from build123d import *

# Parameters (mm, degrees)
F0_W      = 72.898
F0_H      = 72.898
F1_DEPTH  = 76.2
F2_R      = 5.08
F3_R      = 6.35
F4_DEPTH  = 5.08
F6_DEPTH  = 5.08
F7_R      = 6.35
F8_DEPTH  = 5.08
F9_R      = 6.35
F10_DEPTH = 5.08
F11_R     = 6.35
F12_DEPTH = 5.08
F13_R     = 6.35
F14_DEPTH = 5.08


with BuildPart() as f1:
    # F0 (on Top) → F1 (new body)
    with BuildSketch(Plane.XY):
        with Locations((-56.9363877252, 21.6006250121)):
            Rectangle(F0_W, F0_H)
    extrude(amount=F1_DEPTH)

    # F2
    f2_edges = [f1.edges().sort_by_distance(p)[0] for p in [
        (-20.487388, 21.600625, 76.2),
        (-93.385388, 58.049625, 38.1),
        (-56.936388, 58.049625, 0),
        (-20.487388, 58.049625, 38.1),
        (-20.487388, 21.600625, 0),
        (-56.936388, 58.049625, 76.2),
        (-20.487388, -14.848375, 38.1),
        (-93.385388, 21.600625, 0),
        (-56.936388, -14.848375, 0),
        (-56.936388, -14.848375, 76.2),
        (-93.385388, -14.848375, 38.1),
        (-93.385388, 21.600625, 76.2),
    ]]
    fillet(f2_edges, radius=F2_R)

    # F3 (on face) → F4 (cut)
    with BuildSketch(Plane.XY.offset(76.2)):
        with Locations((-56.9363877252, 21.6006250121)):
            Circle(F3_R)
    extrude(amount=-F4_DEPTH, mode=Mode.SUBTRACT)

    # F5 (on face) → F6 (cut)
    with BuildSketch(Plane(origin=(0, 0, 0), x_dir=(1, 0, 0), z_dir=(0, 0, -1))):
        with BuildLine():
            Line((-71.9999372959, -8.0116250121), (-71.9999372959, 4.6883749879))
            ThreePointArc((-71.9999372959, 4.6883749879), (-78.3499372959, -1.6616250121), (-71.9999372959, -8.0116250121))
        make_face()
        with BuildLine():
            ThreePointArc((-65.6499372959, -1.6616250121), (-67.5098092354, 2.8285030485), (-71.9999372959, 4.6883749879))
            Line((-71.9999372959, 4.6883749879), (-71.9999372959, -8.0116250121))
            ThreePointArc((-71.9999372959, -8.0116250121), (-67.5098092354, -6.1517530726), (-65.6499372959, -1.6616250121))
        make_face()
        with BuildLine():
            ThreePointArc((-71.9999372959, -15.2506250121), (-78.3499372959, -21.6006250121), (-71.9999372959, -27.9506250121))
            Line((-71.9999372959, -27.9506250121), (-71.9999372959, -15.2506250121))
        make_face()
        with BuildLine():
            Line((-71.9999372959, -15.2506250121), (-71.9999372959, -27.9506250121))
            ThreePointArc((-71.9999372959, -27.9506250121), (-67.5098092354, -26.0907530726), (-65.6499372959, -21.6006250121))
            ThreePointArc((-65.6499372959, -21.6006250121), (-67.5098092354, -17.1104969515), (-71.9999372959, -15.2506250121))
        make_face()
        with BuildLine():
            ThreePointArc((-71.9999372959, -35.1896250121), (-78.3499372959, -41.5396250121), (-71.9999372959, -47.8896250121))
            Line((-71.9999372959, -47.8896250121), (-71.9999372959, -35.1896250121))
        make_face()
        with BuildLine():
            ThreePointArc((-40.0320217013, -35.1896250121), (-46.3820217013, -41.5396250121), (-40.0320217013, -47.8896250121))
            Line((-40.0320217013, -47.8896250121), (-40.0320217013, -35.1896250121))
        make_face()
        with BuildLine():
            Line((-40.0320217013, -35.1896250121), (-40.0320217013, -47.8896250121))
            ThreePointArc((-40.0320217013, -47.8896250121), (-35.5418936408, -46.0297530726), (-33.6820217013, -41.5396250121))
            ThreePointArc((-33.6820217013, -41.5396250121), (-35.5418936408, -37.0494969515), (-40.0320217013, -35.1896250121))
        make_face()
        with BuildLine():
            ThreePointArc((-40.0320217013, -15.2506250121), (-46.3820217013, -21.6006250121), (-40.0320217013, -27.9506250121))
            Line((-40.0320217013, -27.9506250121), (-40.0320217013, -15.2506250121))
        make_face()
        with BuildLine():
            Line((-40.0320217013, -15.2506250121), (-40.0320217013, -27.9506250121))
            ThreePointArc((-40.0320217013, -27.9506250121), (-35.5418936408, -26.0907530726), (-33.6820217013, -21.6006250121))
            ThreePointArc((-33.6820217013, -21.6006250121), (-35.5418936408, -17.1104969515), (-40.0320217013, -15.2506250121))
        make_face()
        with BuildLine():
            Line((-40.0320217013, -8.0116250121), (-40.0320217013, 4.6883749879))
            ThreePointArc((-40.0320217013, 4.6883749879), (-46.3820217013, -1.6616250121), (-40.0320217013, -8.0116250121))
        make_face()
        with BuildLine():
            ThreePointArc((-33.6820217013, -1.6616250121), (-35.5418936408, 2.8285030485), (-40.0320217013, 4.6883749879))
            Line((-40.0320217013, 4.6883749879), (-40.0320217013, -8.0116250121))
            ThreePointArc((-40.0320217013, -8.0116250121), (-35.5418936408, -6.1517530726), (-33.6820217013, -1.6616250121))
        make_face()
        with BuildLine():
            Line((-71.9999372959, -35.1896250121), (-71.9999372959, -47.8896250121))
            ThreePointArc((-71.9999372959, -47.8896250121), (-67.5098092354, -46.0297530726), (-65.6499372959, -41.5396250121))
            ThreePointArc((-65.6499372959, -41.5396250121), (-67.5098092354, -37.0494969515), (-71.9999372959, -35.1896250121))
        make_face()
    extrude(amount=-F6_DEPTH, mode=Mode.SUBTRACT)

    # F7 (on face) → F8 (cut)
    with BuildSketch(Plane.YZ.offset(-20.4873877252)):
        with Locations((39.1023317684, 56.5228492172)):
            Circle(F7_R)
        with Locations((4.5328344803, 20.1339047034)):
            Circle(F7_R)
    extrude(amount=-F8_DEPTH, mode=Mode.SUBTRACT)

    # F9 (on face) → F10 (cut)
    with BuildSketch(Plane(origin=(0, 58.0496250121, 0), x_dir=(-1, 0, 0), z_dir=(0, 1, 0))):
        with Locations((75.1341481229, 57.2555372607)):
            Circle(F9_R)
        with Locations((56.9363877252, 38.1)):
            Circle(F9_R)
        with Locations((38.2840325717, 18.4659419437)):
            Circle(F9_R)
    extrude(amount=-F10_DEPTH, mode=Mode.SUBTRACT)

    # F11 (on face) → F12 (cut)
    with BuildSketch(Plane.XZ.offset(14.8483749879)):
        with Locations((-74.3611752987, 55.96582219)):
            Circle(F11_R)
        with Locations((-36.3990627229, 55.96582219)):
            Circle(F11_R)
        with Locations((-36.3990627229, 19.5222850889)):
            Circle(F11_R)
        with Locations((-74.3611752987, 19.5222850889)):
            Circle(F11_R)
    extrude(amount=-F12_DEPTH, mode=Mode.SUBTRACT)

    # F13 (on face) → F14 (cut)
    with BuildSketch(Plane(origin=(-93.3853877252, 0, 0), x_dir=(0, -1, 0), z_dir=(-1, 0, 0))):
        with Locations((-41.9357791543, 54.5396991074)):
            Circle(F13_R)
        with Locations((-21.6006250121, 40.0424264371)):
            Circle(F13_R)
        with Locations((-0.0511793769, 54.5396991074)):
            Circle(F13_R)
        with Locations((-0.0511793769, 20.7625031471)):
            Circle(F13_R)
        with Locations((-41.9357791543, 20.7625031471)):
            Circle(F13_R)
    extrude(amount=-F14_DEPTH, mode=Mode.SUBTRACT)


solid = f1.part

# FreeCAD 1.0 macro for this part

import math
import FreeCAD as App
import Part
import Sketcher
from FreeCAD import Vector
Q = App.Units.Quantity

doc = App.newDocument("Part")
body = doc.addObject("PartDesign::Body", "Body")

sketch1 = doc.addObject("Sketcher::SketchObject", "Sketch")
body.addObject(sketch1)
sketch1.AttachmentSupport = (doc.XY_Plane, [""])
sketch1.MapMode = "FlatFace"
sketch1.addGeometry(Part.LineSegment(Vector(-93, 58, 0), Vector(-93, -15, 0)), False)
sketch1.addGeometry(Part.LineSegment(Vector(-93, -15, 0), Vector(-20, -15, 0)), False)
sketch1.addGeometry(Part.LineSegment(Vector(-20, -15, 0), Vector(-20, 58, 0)), False)
sketch1.addGeometry(Part.LineSegment(Vector(-20, 58, 0), Vector(-93, 58, 0)), False)
sketch1.addConstraint(Sketcher.Constraint("Coincident", 0, 2, 1, 1))
sketch1.addConstraint(Sketcher.Constraint("Coincident", 1, 2, 2, 1))
sketch1.addConstraint(Sketcher.Constraint("Coincident", 2, 2, 3, 1))
sketch1.addConstraint(Sketcher.Constraint("Coincident", 3, 2, 0, 1))
sketch1.addConstraint(Sketcher.Constraint("Vertical", 0))
sketch1.addConstraint(Sketcher.Constraint("Horizontal", 1))
sketch1.addConstraint(Sketcher.Constraint("Vertical", 2))
sketch1.addConstraint(Sketcher.Constraint("Horizontal", 3))
sketch1.addConstraint(Sketcher.Constraint("Equal", 3, 0))
sketch1.addConstraint(Sketcher.Constraint("DistanceX", 1, 1, 1, 2, Q("2.87 in")))
sketch1.addConstraint(Sketcher.Constraint("DistanceX", 0, 2, -1, 1, 93.385388))
sketch1.addConstraint(Sketcher.Constraint("DistanceY", 0, 2, -1, 1, 14.848375))
pad1 = doc.addObject("PartDesign::Pad", "Pad")
body.addObject(pad1)
pad1.Profile = sketch1
pad1.Length = Q("3 in")
doc.recompute()

fillet = doc.addObject("PartDesign::Fillet", "Fillet")
body.addObject(fillet)
fillet.Base = (pad1, ["Edge1"])
fillet.UseAllEdges = True
fillet.Radius = Q("0.2 in")

sketch2 = doc.addObject("Sketcher::SketchObject", "Sketch001")
body.addObject(sketch2)
sketch2.AttachmentSupport = (doc.XY_Plane, [""])
sketch2.MapMode = "FlatFace"
sketch2.AttachmentOffset = App.Placement(Vector(0, 0, 3 * 25.4), App.Rotation())
sketch2.addGeometry(Part.Circle(Vector(-57, 22, 0), Vector(0, 0, 1), 6), False)
sketch2.addConstraint(Sketcher.Constraint("Diameter", 0, Q("0.5 in")))
sketch2.addConstraint(Sketcher.Constraint("DistanceX", 0, 3, -1, 1, 56.936388))
sketch2.addConstraint(Sketcher.Constraint("DistanceY", -1, 1, 0, 3, 21.600625))
pocket1 = doc.addObject("PartDesign::Pocket", "Pocket")
body.addObject(pocket1)
pocket1.Profile = sketch2
pocket1.Length = Q("0.2 in")

sketch3 = doc.addObject("Sketcher::SketchObject", "Sketch002")
body.addObject(sketch3)
sketch3.AttachmentSupport = (doc.XY_Plane, [""])
sketch3.MapMode = "FlatFace"
sketch3.addGeometry(Part.ArcOfCircle(Part.Circle(Vector(-72, 2, 0), Vector(0, 0, 1), 6), math.radians(90), math.radians(270)), False)
sketch3.addGeometry(Part.ArcOfCircle(Part.Circle(Vector(-72, 2, 0), Vector(0, 0, 1), 6), math.radians(0), math.radians(90)), False)
sketch3.addGeometry(Part.ArcOfCircle(Part.Circle(Vector(-72, 2, 0), Vector(0, 0, 1), 6), math.radians(-90), math.radians(0)), False)
sketch3.addGeometry(Part.ArcOfCircle(Part.Circle(Vector(-72, 22, 0), Vector(0, 0, 1), 6), math.radians(90), math.radians(270)), False)
sketch3.addGeometry(Part.ArcOfCircle(Part.Circle(Vector(-72, 22, 0), Vector(0, 0, 1), 6), math.radians(0), math.radians(90)), False)
sketch3.addGeometry(Part.ArcOfCircle(Part.Circle(Vector(-72, 22, 0), Vector(0, 0, 1), 6), math.radians(-90), math.radians(0)), False)
sketch3.addGeometry(Part.ArcOfCircle(Part.Circle(Vector(-72, 42, 0), Vector(0, 0, 1), 6), math.radians(90), math.radians(270)), False)
sketch3.addGeometry(Part.ArcOfCircle(Part.Circle(Vector(-72, 42, 0), Vector(0, 0, 1), 6), math.radians(0), math.radians(90)), False)
sketch3.addGeometry(Part.ArcOfCircle(Part.Circle(Vector(-72, 42, 0), Vector(0, 0, 1), 6), math.radians(-90), math.radians(0)), False)
sketch3.addGeometry(Part.ArcOfCircle(Part.Circle(Vector(-40, 42, 0), Vector(0, 0, 1), 6), math.radians(90), math.radians(270)), False)
sketch3.addGeometry(Part.ArcOfCircle(Part.Circle(Vector(-40, 42, 0), Vector(0, 0, 1), 6), math.radians(0), math.radians(90)), False)
sketch3.addGeometry(Part.ArcOfCircle(Part.Circle(Vector(-40, 42, 0), Vector(0, 0, 1), 6), math.radians(-90), math.radians(0)), False)
sketch3.addGeometry(Part.ArcOfCircle(Part.Circle(Vector(-40, 22, 0), Vector(0, 0, 1), 6), math.radians(90), math.radians(270)), False)
sketch3.addGeometry(Part.ArcOfCircle(Part.Circle(Vector(-40, 22, 0), Vector(0, 0, 1), 6), math.radians(0), math.radians(90)), False)
sketch3.addGeometry(Part.ArcOfCircle(Part.Circle(Vector(-40, 22, 0), Vector(0, 0, 1), 6), math.radians(-90), math.radians(0)), False)
sketch3.addGeometry(Part.ArcOfCircle(Part.Circle(Vector(-40, 2, 0), Vector(0, 0, 1), 6), math.radians(90), math.radians(270)), False)
sketch3.addGeometry(Part.ArcOfCircle(Part.Circle(Vector(-40, 2, 0), Vector(0, 0, 1), 6), math.radians(0), math.radians(90)), False)
sketch3.addGeometry(Part.ArcOfCircle(Part.Circle(Vector(-40, 2, 0), Vector(0, 0, 1), 6), math.radians(-90), math.radians(0)), False)
sketch3.addConstraint(Sketcher.Constraint("Tangent", 0, 1, 1, 2))
sketch3.addConstraint(Sketcher.Constraint("Tangent", 1, 1, 2, 2))
sketch3.addConstraint(Sketcher.Constraint("Tangent", 2, 1, 0, 2))
sketch3.addConstraint(Sketcher.Constraint("Tangent", 3, 1, 4, 2))
sketch3.addConstraint(Sketcher.Constraint("Tangent", 4, 1, 5, 2))
sketch3.addConstraint(Sketcher.Constraint("Tangent", 5, 1, 3, 2))
sketch3.addConstraint(Sketcher.Constraint("Tangent", 6, 1, 7, 2))
sketch3.addConstraint(Sketcher.Constraint("Tangent", 7, 1, 8, 2))
sketch3.addConstraint(Sketcher.Constraint("Tangent", 8, 1, 6, 2))
sketch3.addConstraint(Sketcher.Constraint("Tangent", 9, 1, 10, 2))
sketch3.addConstraint(Sketcher.Constraint("Tangent", 10, 1, 11, 2))
sketch3.addConstraint(Sketcher.Constraint("Tangent", 11, 1, 9, 2))
sketch3.addConstraint(Sketcher.Constraint("Tangent", 12, 1, 13, 2))
sketch3.addConstraint(Sketcher.Constraint("Tangent", 13, 1, 14, 2))
sketch3.addConstraint(Sketcher.Constraint("Tangent", 14, 1, 12, 2))
sketch3.addConstraint(Sketcher.Constraint("Tangent", 15, 1, 16, 2))
sketch3.addConstraint(Sketcher.Constraint("Tangent", 16, 1, 17, 2))
sketch3.addConstraint(Sketcher.Constraint("Tangent", 17, 1, 15, 2))
sketch3.addConstraint(Sketcher.Constraint("Equal", 2, 3))
sketch3.addConstraint(Sketcher.Constraint("Equal", 5, 6))
sketch3.addConstraint(Sketcher.Constraint("Equal", 8, 9))
sketch3.addConstraint(Sketcher.Constraint("Equal", 11, 12))
sketch3.addConstraint(Sketcher.Constraint("Equal", 14, 15))
sketch3.addConstraint(Sketcher.Constraint("Horizontal", 8, 3, 9, 3))
sketch3.addConstraint(Sketcher.Constraint("Horizontal", 5, 3, 12, 3))
sketch3.addConstraint(Sketcher.Constraint("Horizontal", 2, 3, 15, 3))
sketch3.addConstraint(Sketcher.Constraint("Horizontal", 17, 3, 1, 1))
sketch3.addConstraint(Sketcher.Constraint("Horizontal", 14, 3, 4, 1))
sketch3.addConstraint(Sketcher.Constraint("Horizontal", 11, 3, 7, 1))
sketch3.addConstraint(Sketcher.Constraint("Horizontal", 7, 1, 10, 1))
sketch3.addConstraint(Sketcher.Constraint("Horizontal", 4, 1, 13, 1))
sketch3.addConstraint(Sketcher.Constraint("Horizontal", 1, 1, 16, 1))
sketch3.addConstraint(Sketcher.Constraint("Vertical", 2, 3, 3, 3))
sketch3.addConstraint(Sketcher.Constraint("Vertical", 5, 3, 6, 3))
sketch3.addConstraint(Sketcher.Constraint("Vertical", 11, 3, 12, 3))
sketch3.addConstraint(Sketcher.Constraint("Vertical", 14, 3, 15, 3))
sketch3.addConstraint(Sketcher.Constraint("Vertical", 8, 3, 0, 1))
sketch3.addConstraint(Sketcher.Constraint("Vertical", 0, 1, 2, 1))
sketch3.addConstraint(Sketcher.Constraint("Vertical", 2, 1, 3, 1))
sketch3.addConstraint(Sketcher.Constraint("Vertical", 3, 1, 5, 1))
sketch3.addConstraint(Sketcher.Constraint("Vertical", 5, 1, 6, 1))
sketch3.addConstraint(Sketcher.Constraint("Vertical", 6, 1, 8, 1))
sketch3.addConstraint(Sketcher.Constraint("Vertical", 17, 3, 9, 1))
sketch3.addConstraint(Sketcher.Constraint("Vertical", 9, 1, 11, 1))
sketch3.addConstraint(Sketcher.Constraint("Vertical", 11, 1, 12, 1))
sketch3.addConstraint(Sketcher.Constraint("Vertical", 12, 1, 14, 1))
sketch3.addConstraint(Sketcher.Constraint("Vertical", 14, 1, 15, 1))
sketch3.addConstraint(Sketcher.Constraint("Vertical", 15, 1, 17, 1))
sketch3.addConstraint(Sketcher.Constraint("Radius", 0, Q("0.25 in")))
sketch3.addConstraint(Sketcher.Constraint("DistanceY", 0, 3, 6, 3, Q("1.57 in")))
sketch3.addConstraint(Sketcher.Constraint("DistanceY", 0, 3, 3, 3, Q("0.785 in")))
sketch3.addConstraint(Sketcher.Constraint("DistanceX", 9, 3, -1, 1, 40.032022))
sketch3.addConstraint(Sketcher.Constraint("DistanceX", 0, 3, -1, 1, 71.999937))
sketch3.addConstraint(Sketcher.Constraint("DistanceY", -1, 1, 0, 3, 1.661625))
pocket2 = doc.addObject("PartDesign::Pocket", "Pocket001")
body.addObject(pocket2)
pocket2.Profile = sketch3
pocket2.Length = Q("0.2 in")
pocket2.Reversed = True

sketch4 = doc.addObject("Sketcher::SketchObject", "Sketch003")
body.addObject(sketch4)
sketch4.AttachmentSupport = (doc.YZ_Plane, [""])
sketch4.MapMode = "FlatFace"
sketch4.AttachmentOffset = App.Placement(Vector(0, 0, -20.487388), App.Rotation())
sketch4.addGeometry(Part.Circle(Vector(39, 57, 0), Vector(0, 0, 1), 6), False)
sketch4.addGeometry(Part.Circle(Vector(5, 20, 0), Vector(0, 0, 1), 6), False)
sketch4.addConstraint(Sketcher.Constraint("Equal", 0, 1))
sketch4.addConstraint(Sketcher.Constraint("Diameter", 0, Q("0.5 in")))
sketch4.addConstraint(Sketcher.Constraint("DistanceX", -1, 1, 0, 3, 39.102332))
sketch4.addConstraint(Sketcher.Constraint("DistanceY", -1, 1, 0, 3, 56.522849))
sketch4.addConstraint(Sketcher.Constraint("DistanceX", -1, 1, 1, 3, 4.532834))
sketch4.addConstraint(Sketcher.Constraint("DistanceY", -1, 1, 1, 3, 20.133905))
pocket3 = doc.addObject("PartDesign::Pocket", "Pocket002")
body.addObject(pocket3)
pocket3.Profile = sketch4
pocket3.Length = Q("0.2 in")

sketch5 = doc.addObject("Sketcher::SketchObject", "Sketch004")
body.addObject(sketch5)
sketch5.AttachmentSupport = (doc.XZ_Plane, [""])
sketch5.MapMode = "FlatFace"
sketch5.AttachmentOffset = App.Placement(Vector(0, 0, -58.049625), App.Rotation())
sketch5.addGeometry(Part.Circle(Vector(-75, 57, 0), Vector(0, 0, 1), 6), False)
sketch5.addGeometry(Part.Circle(Vector(-57, 38, 0), Vector(0, 0, 1), 6), False)
sketch5.addGeometry(Part.Circle(Vector(-38, 18, 0), Vector(0, 0, 1), 6), False)
sketch5.addConstraint(Sketcher.Constraint("Equal", 0, 1))
sketch5.addConstraint(Sketcher.Constraint("Equal", 1, 2))
sketch5.addConstraint(Sketcher.Constraint("Diameter", 0, Q("0.5 in")))
sketch5.addConstraint(Sketcher.Constraint("DistanceY", -1, 1, 1, 3, Q("1.5 in")))
sketch5.addConstraint(Sketcher.Constraint("DistanceX", 0, 3, -1, 1, 75.134148))
sketch5.addConstraint(Sketcher.Constraint("DistanceY", -1, 1, 2, 3, 18.465942))
sketch5.addConstraint(Sketcher.Constraint("DistanceX", 0, 3, 1, 3, 18.19776))
sketch5.addConstraint(Sketcher.Constraint("DistanceY", -1, 1, 0, 3, 57.255537))
sketch5.addConstraint(Sketcher.Constraint("DistanceX", 2, 3, -1, 1, 38.284033))
pocket4 = doc.addObject("PartDesign::Pocket", "Pocket003")
body.addObject(pocket4)
pocket4.Profile = sketch5
pocket4.Length = Q("0.2 in")
pocket4.Reversed = True

sketch6 = doc.addObject("Sketcher::SketchObject", "Sketch005")
body.addObject(sketch6)
sketch6.AttachmentSupport = (doc.XZ_Plane, [""])
sketch6.MapMode = "FlatFace"
sketch6.AttachmentOffset = App.Placement(Vector(0, 0, 14.848375), App.Rotation())
sketch6.addGeometry(Part.Circle(Vector(-74, 56, 0), Vector(0, 0, 1), 6), False)
sketch6.addGeometry(Part.Circle(Vector(-36, 56, 0), Vector(0, 0, 1), 6), False)
sketch6.addGeometry(Part.Circle(Vector(-36, 20, 0), Vector(0, 0, 1), 6), False)
sketch6.addGeometry(Part.Circle(Vector(-74, 20, 0), Vector(0, 0, 1), 6), False)
sketch6.addConstraint(Sketcher.Constraint("Equal", 0, 1))
sketch6.addConstraint(Sketcher.Constraint("Equal", 1, 2))
sketch6.addConstraint(Sketcher.Constraint("Equal", 2, 3))
sketch6.addConstraint(Sketcher.Constraint("Horizontal", 0, 3, 1, 3))
sketch6.addConstraint(Sketcher.Constraint("Horizontal", 2, 3, 3, 3))
sketch6.addConstraint(Sketcher.Constraint("Vertical", 1, 3, 2, 3))
sketch6.addConstraint(Sketcher.Constraint("Vertical", 0, 3, 3, 3))
sketch6.addConstraint(Sketcher.Constraint("Diameter", 0, Q("0.5 in")))
sketch6.addConstraint(Sketcher.Constraint("DistanceX", 0, 3, -1, 1, 74.361175))
sketch6.addConstraint(Sketcher.Constraint("DistanceY", -1, 1, 0, 3, 55.965822))
sketch6.addConstraint(Sketcher.Constraint("DistanceX", 1, 3, -1, 1, 36.399063))
sketch6.addConstraint(Sketcher.Constraint("DistanceY", -1, 1, 2, 3, 19.522285))
pocket5 = doc.addObject("PartDesign::Pocket", "Pocket004")
body.addObject(pocket5)
pocket5.Profile = sketch6
pocket5.Length = Q("0.2 in")

sketch7 = doc.addObject("Sketcher::SketchObject", "Sketch006")
body.addObject(sketch7)
sketch7.AttachmentSupport = (doc.YZ_Plane, [""])
sketch7.MapMode = "FlatFace"
sketch7.AttachmentOffset = App.Placement(Vector(0, 0, -93.385388), App.Rotation())
sketch7.addGeometry(Part.Circle(Vector(42, 55, 0), Vector(0, 0, 1), 6), False)
sketch7.addGeometry(Part.Circle(Vector(22, 40, 0), Vector(0, 0, 1), 6), False)
sketch7.addGeometry(Part.Circle(Vector(0, 55, 0), Vector(0, 0, 1), 6), False)
sketch7.addGeometry(Part.Circle(Vector(0, 21, 0), Vector(0, 0, 1), 6), False)
sketch7.addGeometry(Part.Circle(Vector(42, 21, 0), Vector(0, 0, 1), 6), False)
sketch7.addConstraint(Sketcher.Constraint("Equal", 0, 1))
sketch7.addConstraint(Sketcher.Constraint("Equal", 1, 2))
sketch7.addConstraint(Sketcher.Constraint("Equal", 2, 3))
sketch7.addConstraint(Sketcher.Constraint("Equal", 3, 4))
sketch7.addConstraint(Sketcher.Constraint("Horizontal", 0, 3, 2, 3))
sketch7.addConstraint(Sketcher.Constraint("Horizontal", 3, 3, 4, 3))
sketch7.addConstraint(Sketcher.Constraint("Vertical", 2, 3, 3, 3))
sketch7.addConstraint(Sketcher.Constraint("Vertical", 0, 3, 4, 3))
sketch7.addConstraint(Sketcher.Constraint("Diameter", 0, Q("0.5 in")))
sketch7.addConstraint(Sketcher.Constraint("DistanceX", 2, 3, 0, 3, Q("1.649 in")))
sketch7.addConstraint(Sketcher.Constraint("DistanceY", -1, 1, 0, 3, 54.539699))
sketch7.addConstraint(Sketcher.Constraint("DistanceX", -1, 1, 0, 3, 41.935779))
sketch7.addConstraint(Sketcher.Constraint("DistanceX", -1, 1, 1, 3, 21.600625))
sketch7.addConstraint(Sketcher.Constraint("DistanceY", -1, 1, 1, 3, 40.042426))
sketch7.addConstraint(Sketcher.Constraint("DistanceY", -1, 1, 3, 3, 20.762503))
pocket6 = doc.addObject("PartDesign::Pocket", "Pocket005")
body.addObject(pocket6)
pocket6.Profile = sketch7
pocket6.Length = Q("0.2 in")
pocket6.Reversed = True

doc.recompute()
